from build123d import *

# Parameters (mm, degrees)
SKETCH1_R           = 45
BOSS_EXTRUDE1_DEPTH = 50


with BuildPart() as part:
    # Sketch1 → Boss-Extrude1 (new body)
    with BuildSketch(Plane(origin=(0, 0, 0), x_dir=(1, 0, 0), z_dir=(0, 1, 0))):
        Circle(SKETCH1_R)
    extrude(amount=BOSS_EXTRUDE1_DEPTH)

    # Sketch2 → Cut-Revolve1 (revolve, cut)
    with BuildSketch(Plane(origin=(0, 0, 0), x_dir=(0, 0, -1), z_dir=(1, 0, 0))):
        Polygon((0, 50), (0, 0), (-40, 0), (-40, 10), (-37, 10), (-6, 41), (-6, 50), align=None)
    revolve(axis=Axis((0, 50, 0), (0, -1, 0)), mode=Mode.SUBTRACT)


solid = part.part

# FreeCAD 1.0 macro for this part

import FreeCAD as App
import Part
import Sketcher

V = App.Vector


def add_polygon(sketch, points):
    """Adds a closed chain of lines whose ends are joined by coincident constraints."""
    first, n = sketch.GeometryCount, len(points)
    for a, b in zip(points, points[1:] + points[:1]):
        sketch.addGeometry(Part.LineSegment(App.Vector(*a, 0), App.Vector(*b, 0)), False)
    for i in range(n):
        sketch.addConstraint(Sketcher.Constraint("Coincident", first + i, 2, first + (i + 1) % n, 1))

doc = App.newDocument("Part")
body = doc.addObject("PartDesign::Body", "Body")

sketch1 = body.newObject("Sketcher::SketchObject", "Sketch")
sketch1.AttachmentSupport = (doc.getObject("XZ_Plane"), [""])
sketch1.MapMode = "FlatFace"
sketch1.addGeometry(Part.Circle(V(0, 0, 0), V(0, 0, 1), 45), False)
sketch1.addConstraint(Sketcher.Constraint("Coincident", 0, 3, -1, 1))
sketch1.addConstraint(Sketcher.Constraint("Diameter", 0, 90.0))
pad1 = body.newObject("PartDesign::Pad", "Pad")
pad1.Profile = sketch1
pad1.Length = 50
pad1.Reversed = True

sketch2 = body.newObject("Sketcher::SketchObject", "Sketch001")
sketch2.AttachmentSupport = (doc.getObject("YZ_Plane"), [""])
sketch2.MapMode = "FlatFace"
add_polygon(sketch2, [(0, 0), (50, 0), (50, 6), (41, 6), (10, 37), (10, 40), (0, 40)])
sketch2.addConstraint(Sketcher.Constraint("Horizontal", 0))
sketch2.addConstraint(Sketcher.Constraint("Vertical", 1))
sketch2.addConstraint(Sketcher.Constraint("Horizontal", 2))
sketch2.addConstraint(Sketcher.Constraint("Vertical", 4))
sketch2.addConstraint(Sketcher.Constraint("Horizontal", 5))
sketch2.addConstraint(Sketcher.Constraint("Vertical", 6))
sketch2.addConstraint(Sketcher.Constraint("Coincident", 6, 2, -1, 1))
sketch2.addConstraint(Sketcher.Constraint("DistanceX", 0, 1, 0, 2, 50.0))
sketch2.addConstraint(Sketcher.Constraint("DistanceX", 2, 2, 2, 1, 9.0))
sketch2.addConstraint(Sketcher.Constraint("DistanceX", 5, 2, 5, 1, 10.0))
sketch2.addConstraint(Sketcher.Constraint("DistanceY", 1, 1, 1, 2, 6.0))
sketch2.addConstraint(Sketcher.Constraint("DistanceY", 4, 1, 4, 2, 3.0))
sketch2.addConstraint(Sketcher.Constraint("DistanceY", 6, 2, 6, 1, 40.0))
groove = body.newObject("PartDesign::Groove", "Groove")
groove.Profile = sketch2
groove.ReferenceAxis = (sketch2, ["H_Axis"])
groove.Angle = 360

doc.recompute()
